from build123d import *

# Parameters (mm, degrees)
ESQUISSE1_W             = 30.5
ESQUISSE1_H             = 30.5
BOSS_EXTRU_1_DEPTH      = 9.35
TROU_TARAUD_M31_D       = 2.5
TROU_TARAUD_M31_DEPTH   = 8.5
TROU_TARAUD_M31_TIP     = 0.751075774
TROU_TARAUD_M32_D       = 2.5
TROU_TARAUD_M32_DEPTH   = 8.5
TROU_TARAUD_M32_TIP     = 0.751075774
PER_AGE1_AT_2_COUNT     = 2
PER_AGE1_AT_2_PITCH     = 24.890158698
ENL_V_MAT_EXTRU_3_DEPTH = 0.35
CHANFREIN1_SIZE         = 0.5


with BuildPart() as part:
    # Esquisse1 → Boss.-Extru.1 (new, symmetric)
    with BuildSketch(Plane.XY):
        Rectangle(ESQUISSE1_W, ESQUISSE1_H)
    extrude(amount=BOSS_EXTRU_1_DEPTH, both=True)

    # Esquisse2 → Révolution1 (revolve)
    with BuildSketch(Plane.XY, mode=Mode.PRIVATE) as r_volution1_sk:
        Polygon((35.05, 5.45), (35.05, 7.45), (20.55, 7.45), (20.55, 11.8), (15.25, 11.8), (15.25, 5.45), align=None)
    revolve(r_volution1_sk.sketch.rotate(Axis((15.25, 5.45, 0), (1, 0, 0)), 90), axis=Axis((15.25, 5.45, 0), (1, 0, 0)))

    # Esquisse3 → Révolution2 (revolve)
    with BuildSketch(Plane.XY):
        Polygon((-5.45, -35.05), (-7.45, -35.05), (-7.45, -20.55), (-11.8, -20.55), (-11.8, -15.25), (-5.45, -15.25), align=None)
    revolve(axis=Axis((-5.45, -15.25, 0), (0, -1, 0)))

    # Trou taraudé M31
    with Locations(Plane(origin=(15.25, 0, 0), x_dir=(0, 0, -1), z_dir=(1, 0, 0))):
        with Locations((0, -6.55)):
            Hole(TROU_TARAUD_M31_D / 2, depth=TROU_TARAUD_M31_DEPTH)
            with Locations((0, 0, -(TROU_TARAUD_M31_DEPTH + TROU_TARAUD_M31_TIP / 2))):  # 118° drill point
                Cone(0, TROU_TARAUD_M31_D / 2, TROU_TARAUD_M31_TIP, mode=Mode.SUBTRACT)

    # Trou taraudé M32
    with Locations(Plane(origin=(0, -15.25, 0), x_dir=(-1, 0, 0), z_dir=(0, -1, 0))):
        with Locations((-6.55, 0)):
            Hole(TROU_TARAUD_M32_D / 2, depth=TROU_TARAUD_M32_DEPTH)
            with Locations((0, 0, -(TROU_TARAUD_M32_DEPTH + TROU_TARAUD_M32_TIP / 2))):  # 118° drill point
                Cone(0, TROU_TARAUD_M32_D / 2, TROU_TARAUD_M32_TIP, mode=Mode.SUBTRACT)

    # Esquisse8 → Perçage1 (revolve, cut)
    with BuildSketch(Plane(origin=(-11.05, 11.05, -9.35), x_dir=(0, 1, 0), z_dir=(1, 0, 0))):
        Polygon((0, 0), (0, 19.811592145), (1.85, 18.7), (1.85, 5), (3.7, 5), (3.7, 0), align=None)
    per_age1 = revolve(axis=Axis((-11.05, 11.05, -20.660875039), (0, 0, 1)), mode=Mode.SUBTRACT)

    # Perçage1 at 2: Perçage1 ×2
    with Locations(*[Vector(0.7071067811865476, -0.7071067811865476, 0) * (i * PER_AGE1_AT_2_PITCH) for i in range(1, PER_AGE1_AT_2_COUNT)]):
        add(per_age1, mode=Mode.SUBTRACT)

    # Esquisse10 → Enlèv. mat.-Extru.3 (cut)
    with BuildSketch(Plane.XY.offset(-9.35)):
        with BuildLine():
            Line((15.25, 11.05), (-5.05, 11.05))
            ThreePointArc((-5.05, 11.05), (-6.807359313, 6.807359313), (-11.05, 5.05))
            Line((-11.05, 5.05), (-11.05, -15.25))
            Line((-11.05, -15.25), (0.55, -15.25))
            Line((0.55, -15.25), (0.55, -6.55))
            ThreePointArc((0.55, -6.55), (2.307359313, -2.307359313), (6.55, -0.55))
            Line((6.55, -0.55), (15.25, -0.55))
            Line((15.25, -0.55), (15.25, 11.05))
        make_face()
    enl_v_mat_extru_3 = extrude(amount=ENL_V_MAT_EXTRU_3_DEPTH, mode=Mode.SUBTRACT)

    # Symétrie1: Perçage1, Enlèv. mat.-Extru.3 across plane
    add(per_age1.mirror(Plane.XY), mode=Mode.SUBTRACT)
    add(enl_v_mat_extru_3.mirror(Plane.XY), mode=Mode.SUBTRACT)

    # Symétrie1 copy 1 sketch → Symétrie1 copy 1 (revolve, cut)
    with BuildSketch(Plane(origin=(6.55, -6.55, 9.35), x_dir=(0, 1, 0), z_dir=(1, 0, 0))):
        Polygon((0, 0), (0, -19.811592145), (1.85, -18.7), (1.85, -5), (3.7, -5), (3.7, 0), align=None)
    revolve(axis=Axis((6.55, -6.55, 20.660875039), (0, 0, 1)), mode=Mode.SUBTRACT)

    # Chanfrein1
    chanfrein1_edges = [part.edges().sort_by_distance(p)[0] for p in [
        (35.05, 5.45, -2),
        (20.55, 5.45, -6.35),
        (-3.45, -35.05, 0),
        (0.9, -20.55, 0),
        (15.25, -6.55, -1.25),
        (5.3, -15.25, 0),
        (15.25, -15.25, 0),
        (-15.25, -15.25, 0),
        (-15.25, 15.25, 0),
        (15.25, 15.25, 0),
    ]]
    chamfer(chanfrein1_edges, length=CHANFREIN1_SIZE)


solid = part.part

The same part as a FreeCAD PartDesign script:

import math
import FreeCAD as App
import Part
import Sketcher
from FreeCAD import Vector
Q = App.Units.Quantity


def edges_at(feature, points):
    """Names of the edges that pass closest to the given points."""
    edges = feature.Shape.Edges
    near = lambda p: min(range(len(edges)), key=lambda i: edges[i].distToShape(Part.Vertex(*p))[0])
    return sorted({f"Edge{near(p) + 1}" for p in points})

doc = App.newDocument("Part")
body = doc.addObject("PartDesign::Body", "Body")

sketch1 = body.newObject("Sketcher::SketchObject", "Sketch")
sketch1.AttachmentSupport = (doc.getObject("XY_Plane"), [""])
sketch1.MapMode = "FlatFace"
sketch1.addGeometry(Part.LineSegment(Vector(-15, 15, 0), Vector(-15, -15, 0)), False)
sketch1.addGeometry(Part.LineSegment(Vector(-15, -15, 0), Vector(15, -15, 0)), False)
sketch1.addGeometry(Part.LineSegment(Vector(15, -15, 0), Vector(15, 15, 0)), False)
sketch1.addGeometry(Part.LineSegment(Vector(15, 15, 0), Vector(-15, 15, 0)), False)
sketch1.addConstraint(Sketcher.Constraint("Coincident", 0, 2, 1, 1))
sketch1.addConstraint(Sketcher.Constraint("Coincident", 1, 2, 2, 1))
sketch1.addConstraint(Sketcher.Constraint("Coincident", 2, 2, 3, 1))
sketch1.addConstraint(Sketcher.Constraint("Coincident", 3, 2, 0, 1))
sketch1.addConstraint(Sketcher.Constraint("Vertical", 0))
sketch1.addConstraint(Sketcher.Constraint("Horizontal", 1))
sketch1.addConstraint(Sketcher.Constraint("Vertical", 2))
sketch1.addConstraint(Sketcher.Constraint("Horizontal", 3))
sketch1.addConstraint(Sketcher.Constraint("Symmetric", 0, 2, 2, 2, -1, 1))
sketch1.addConstraint(Sketcher.Constraint("Equal", 3, 0))
sketch1.addConstraint(Sketcher.Constraint("DistanceX", 1, 1, 1, 2, Q("30.5 mm")))
pad1 = body.newObject("PartDesign::Pad", "Pad")
pad1.Profile = sketch1
pad1.Length = 18.7
pad1.Midplane = True

sketch2 = body.newObject("Sketcher::SketchObject", "Sketch001")
sketch2.AttachmentSupport = (doc.getObject("XY_Plane"), [""])
sketch2.MapMode = "FlatFace"
sketch2.addGeometry(Part.LineSegment(Vector(35, 5.5, 0), Vector(35, 7.5, 0)), False)
sketch2.addGeometry(Part.LineSegment(Vector(35, 7.5, 0), Vector(20.6, 7.5, 0)), False)
sketch2.addGeometry(Part.LineSegment(Vector(20.6, 7.5, 0), Vector(20.6, 11.8, 0)), False)
sketch2.addGeometry(Part.LineSegment(Vector(20.6, 11.8, 0), Vector(15.2, 11.8, 0)), False)
sketch2.addGeometry(Part.LineSegment(Vector(15.2, 11.8, 0), Vector(15.2, 5.5, 0)), False)
sketch2.addGeometry(Part.LineSegment(Vector(15.2, 5.5, 0), Vector(35, 5.5, 0)), False)
sketch2.addGeometry(Part.LineSegment(Vector(15.2, 5.5, 0), Vector(35, 5.5, 0)), True)
sketch2.addConstraint(Sketcher.Constraint("Coincident", 0, 2, 1, 1))
sketch2.addConstraint(Sketcher.Constraint("Coincident", 1, 2, 2, 1))
sketch2.addConstraint(Sketcher.Constraint("Coincident", 2, 2, 3, 1))
sketch2.addConstraint(Sketcher.Constraint("Coincident", 3, 2, 4, 1))
sketch2.addConstraint(Sketcher.Constraint("Coincident", 4, 2, 5, 1))
sketch2.addConstraint(Sketcher.Constraint("Coincident", 5, 2, 0, 1))
sketch2.addConstraint(Sketcher.Constraint("Vertical", 0))
sketch2.addConstraint(Sketcher.Constraint("Horizontal", 1))
sketch2.addConstraint(Sketcher.Constraint("Vertical", 2))
sketch2.addConstraint(Sketcher.Constraint("Horizontal", 3))
sketch2.addConstraint(Sketcher.Constraint("Vertical", 4))
sketch2.addConstraint(Sketcher.Constraint("Horizontal", 5))
sketch2.addConstraint(Sketcher.Constraint("Horizontal", 6))
sketch2.addConstraint(Sketcher.Constraint("Coincident", 6, 1, 4, 2))
sketch2.addConstraint(Sketcher.Constraint("Vertical", 0, 2, 6, 2))
sketch2.addConstraint(Sketcher.Constraint("DistanceY", 0, 1, 0, 2, Q("2 mm")))
sketch2.addConstraint(Sketcher.Constraint("DistanceX", 1, 2, 1, 1, Q("14.5 mm")))
sketch2.addConstraint(Sketcher.Constraint("DistanceX", 3, 2, 3, 1, Q("5.3 mm")))
sketch2.addConstraint(Sketcher.Constraint("DistanceY", 2, 1, 2, 2, Q("4.35 mm")))
sketch2.addConstraint(Sketcher.Constraint("DistanceY", -1, 1, 2, 2, Q("11.8 mm")))
sketch2.addConstraint(Sketcher.Constraint("DistanceX", -1, 1, 0, 2, Q("35.05 mm")))
revolution = body.newObject("PartDesign::Revolution", "Revolution")
revolution.Profile = sketch2
revolution.ReferenceAxis = (sketch2, ["Axis0"])
revolution.Angle = 360

sketch3 = body.newObject("Sketcher::SketchObject", "Sketch002")
sketch3.AttachmentSupport = (doc.getObject("XY_Plane"), [""])
sketch3.MapMode = "FlatFace"
sketch3.addGeometry(Part.LineSegment(Vector(-7.5, -35, 0), Vector(-5.5, -35, 0)), False)
sketch3.addGeometry(Part.LineSegment(Vector(-5.5, -35, 0), Vector(-5.5, -15.2, 0)), False)
sketch3.addGeometry(Part.LineSegment(Vector(-5.5, -15.2, 0), Vector(-11.8, -15.2, 0)), False)
sketch3.addGeometry(Part.LineSegment(Vector(-11.8, -15.2, 0), Vector(-11.8, -20.6, 0)), False)
sketch3.addGeometry(Part.LineSegment(Vector(-11.8, -20.6, 0), Vector(-7.5, -20.6, 0)), False)
sketch3.addGeometry(Part.LineSegment(Vector(-7.5, -20.6, 0), Vector(-7.5, -35, 0)), False)
sketch3.addGeometry(Part.LineSegment(Vector(-5.5, -15.2, 0), Vector(-5.5, -35, 0)), True)
sketch3.addConstraint(Sketcher.Constraint("Coincident", 0, 2, 1, 1))
sketch3.addConstraint(Sketcher.Constraint("Coincident", 1, 2, 2, 1))
sketch3.addConstraint(Sketcher.Constraint("Coincident", 2, 2, 3, 1))
sketch3.addConstraint(Sketcher.Constraint("Coincident", 3, 2, 4, 1))
sketch3.addConstraint(Sketcher.Constraint("Coincident", 4, 2, 5, 1))
sketch3.addConstraint(Sketcher.Constraint("Coincident", 5, 2, 0, 1))
sketch3.addConstraint(Sketcher.Constraint("Horizontal", 0))
sketch3.addConstraint(Sketcher.Constraint("Vertical", 1))
sketch3.addConstraint(Sketcher.Constraint("Horizontal", 2))
sketch3.addConstraint(Sketcher.Constraint("Vertical", 3))
sketch3.addConstraint(Sketcher.Constraint("Horizontal", 4))
sketch3.addConstraint(Sketcher.Constraint("Vertical", 5))
sketch3.addConstraint(Sketcher.Constraint("Vertical", 6))
sketch3.addConstraint(Sketcher.Constraint("Coincident", 6, 1, 1, 2))
sketch3.addConstraint(Sketcher.Constraint("Horizontal", 5, 2, 6, 2))
sketch3.addConstraint(Sketcher.Constraint("DistanceX", 0, 1, 0, 2, Q("2 mm")))
sketch3.addConstraint(Sketcher.Constraint("DistanceY", 1, 1, 1, 2, Q("19.8 mm")))
sketch3.addConstraint(Sketcher.Constraint("DistanceY", 3, 2, 3, 1, Q("5.3 mm")))
sketch3.addConstraint(Sketcher.Constraint("DistanceX", 2, 2, 2, 1, Q("6.35 mm")))
sketch3.addConstraint(Sketcher.Constraint("DistanceX", 2, 2, -1, 1, Q("11.8 mm")))
sketch3.addConstraint(Sketcher.Constraint("DistanceY", 0, 2, -1, 1, Q("35.05 mm")))
revolution2 = body.newObject("PartDesign::Revolution", "Revolution001")
revolution2.Profile = sketch3
revolution2.ReferenceAxis = (sketch3, ["Axis0"])
revolution2.Angle = 360

sketch4 = body.newObject("Sketcher::SketchObject", "Sketch003")
sketch4.AttachmentSupport = (doc.getObject("YZ_Plane"), [""])
sketch4.MapMode = "FlatFace"
sketch4.AttachmentOffset = App.Placement(Vector(0, 0, 15.25), App.Rotation())
sketch4.addGeometry(Part.Circle(Vector(-6.5, 0, 0), Vector(0, 0, 1), 1.2), False)
sketch4.addConstraint(Sketcher.Constraint("PointOnObject", 0, 3, -1))
sketch4.addConstraint(Sketcher.Constraint("Diameter", 0, Q("2.5 mm")))
sketch4.addConstraint(Sketcher.Constraint("DistanceX", 0, 3, -1, 1, Q("6.55 mm")))
doc.recompute()
hole = body.newObject("PartDesign::Hole", "Hole")
hole.Profile = sketch4
hole.ThreadType = "None"
hole.Diameter = 2.5
hole.DepthType = "Dimension"
hole.Depth = 8.5
hole.DrillPoint = "Angled"
hole.DrillPointAngle = 118

sketch5 = body.newObject("Sketcher::SketchObject", "Sketch004")
sketch5.AttachmentSupport = (doc.getObject("XZ_Plane"), [""])
sketch5.MapMode = "FlatFace"
sketch5.AttachmentOffset = App.Placement(Vector(0, 0, 15.25), App.Rotation())
sketch5.addGeometry(Part.Circle(Vector(6.5, 0, 0), Vector(0, 0, 1), 1.2), False)
sketch5.addConstraint(Sketcher.Constraint("PointOnObject", 0, 3, -1))
sketch5.addConstraint(Sketcher.Constraint("Diameter", 0, Q("2.5 mm")))
sketch5.addConstraint(Sketcher.Constraint("DistanceX", -1, 1, 0, 3, Q("6.55 mm")))
doc.recompute()
hole2 = body.newObject("PartDesign::Hole", "Hole001")
hole2.Profile = sketch5
hole2.ThreadType = "None"
hole2.Diameter = 2.5
hole2.DepthType = "Dimension"
hole2.Depth = 8.5
hole2.DrillPoint = "Angled"
hole2.DrillPointAngle = 118

sketch6 = body.newObject("Sketcher::SketchObject", "Sketch005")
sketch6.AttachmentSupport = (doc.getObject("YZ_Plane"), [""])
sketch6.MapMode = "FlatFace"
sketch6.AttachmentOffset = App.Placement(Vector(0, 0, -11.05), App.Rotation())
sketch6.addGeometry(Part.LineSegment(Vector(11.1, 10.5, 0), Vector(11.1, -9.3, 0)), False)
sketch6.addGeometry(Part.LineSegment(Vector(11.1, -9.3, 0), Vector(14.8, -9.3, 0)), False)
sketch6.addGeometry(Part.LineSegment(Vector(14.8, -9.3, 0), Vector(14.8, -4.3, 0)), False)
sketch6.addGeometry(Part.LineSegment(Vector(14.8, -4.3, 0), Vector(12.9, -4.3, 0)), False)
sketch6.addGeometry(Part.LineSegment(Vector(12.9, -4.3, 0), Vector(12.9, 9.3, 0)), False)
sketch6.addGeometry(Part.LineSegment(Vector(12.9, 9.3, 0), Vector(11.1, 10.5, 0)), False)
sketch6.addGeometry(Part.LineSegment(Vector(11.1, -9.3, 0), Vector(11.1, 10.5, 0)), True)
sketch6.addConstraint(Sketcher.Constraint("Coincident", 0, 2, 1, 1))
sketch6.addConstraint(Sketcher.Constraint("Coincident", 1, 2, 2, 1))
sketch6.addConstraint(Sketcher.Constraint("Coincident", 2, 2, 3, 1))
sketch6.addConstraint(Sketcher.Constraint("Coincident", 3, 2, 4, 1))
sketch6.addConstraint(Sketcher.Constraint("Coincident", 4, 2, 5, 1))
sketch6.addConstraint(Sketcher.Constraint("Coincident", 5, 2, 0, 1))
sketch6.addConstraint(Sketcher.Constraint("Vertical", 0))
sketch6.addConstraint(Sketcher.Constraint("Horizontal", 1))
sketch6.addConstraint(Sketcher.Constraint("Vertical", 2))
sketch6.addConstraint(Sketcher.Constraint("Horizontal", 3))
sketch6.addConstraint(Sketcher.Constraint("Vertical", 4))
sketch6.addConstraint(Sketcher.Constraint("Vertical", 6))
sketch6.addConstraint(Sketcher.Constraint("Coincident", 6, 1, 0, 2))
sketch6.addConstraint(Sketcher.Constraint("Equal", 0, 6))
sketch6.addConstraint(Sketcher.Constraint("DistanceY", 2, 1, 2, 2, Q("5 mm")))
sketch6.addConstraint(Sketcher.Constraint("Angle", 5, Q("149 deg")))
sketch6.addConstraint(Sketcher.Constraint("DistanceX", 1, 1, 1, 2, Q("3.7 mm")))
sketch6.addConstraint(Sketcher.Constraint("DistanceY", 4, 1, 4, 2, Q("13.7 mm")))
sketch6.addConstraint(Sketcher.Constraint("DistanceX", 3, 2, 3, 1, Q("1.85 mm")))
sketch6.addConstraint(Sketcher.Constraint("DistanceX", -1, 1, 3, 2, Q("12.9 mm")))
sketch6.addConstraint(Sketcher.Constraint("DistanceY", 0, 2, -1, 1, Q("9.35 mm")))
groove = body.newObject("PartDesign::Groove", "Groove")
groove.Profile = sketch6
groove.ReferenceAxis = (sketch6, ["Axis0"])
groove.Angle = 360
doc.recompute()

datumline = body.newObject("PartDesign::Line", "DatumLine")
datumline.Placement = App.Placement(Vector(0, 0, 0), App.Rotation(Vector(0, 0, 1), Vector(0.707106781, -0.707106781, 0)))
linearpattern = body.newObject("PartDesign::LinearPattern", "LinearPattern")
linearpattern.Originals = [groove]
linearpattern.Direction = (datumline, [""])
linearpattern.Mode = "offset"
linearpattern.Offset = 24.890159
linearpattern.Occurrences = 2
body.Tip = linearpattern

sketch7 = body.newObject("Sketcher::SketchObject", "Sketch006")
sketch7.AttachmentSupport = (doc.getObject("XY_Plane"), [""])
sketch7.MapMode = "FlatFace"
sketch7.AttachmentOffset = App.Placement(Vector(0, 0, -9.35), App.Rotation())
sketch7.addGeometry(Part.LineSegment(Vector(15, 11, 0), Vector(-5, 11, 0)), False)
sketch7.addGeometry(Part.ArcOfCircle(Part.Circle(Vector(-11, 11, 0), Vector(0, 0, 1), 6), math.radians(-90), math.radians(0)), False)
sketch7.addGeometry(Part.LineSegment(Vector(-11, 5, 0), Vector(-11, -15, 0)), False)
sketch7.addGeometry(Part.LineSegment(Vector(-11, -15, 0), Vector(1, -15, 0)), False)
sketch7.addGeometry(Part.LineSegment(Vector(1, -15, 0), Vector(1, -7, 0)), False)
sketch7.addGeometry(Part.ArcOfCircle(Part.Circle(Vector(7, -7, 0), Vector(0, 0, 1), 6), math.radians(90), math.radians(180)), False)
sketch7.addGeometry(Part.LineSegment(Vector(7, -1, 0), Vector(15, -1, 0)), False)
sketch7.addGeometry(Part.LineSegment(Vector(15, -1, 0), Vector(15, 11, 0)), False)
sketch7.addConstraint(Sketcher.Constraint("Coincident", 0, 2, 1, 2))
sketch7.addConstraint(Sketcher.Constraint("Coincident", 1, 1, 2, 1))
sketch7.addConstraint(Sketcher.Constraint("Coincident", 2, 2, 3, 1))
sketch7.addConstraint(Sketcher.Constraint("Coincident", 3, 2, 4, 1))
sketch7.addConstraint(Sketcher.Constraint("Tangent", 4, 2, 5, 2))
sketch7.addConstraint(Sketcher.Constraint("Tangent", 5, 1, 6, 1))
sketch7.addConstraint(Sketcher.Constraint("Coincident", 6, 2, 7, 1))
sketch7.addConstraint(Sketcher.Constraint("Coincident", 7, 2, 0, 1))
sketch7.addConstraint(Sketcher.Constraint("Horizontal", 0))
sketch7.addConstraint(Sketcher.Constraint("Vertical", 2))
sketch7.addConstraint(Sketcher.Constraint("Horizontal", 3))
sketch7.addConstraint(Sketcher.Constraint("Vertical", 4))
sketch7.addConstraint(Sketcher.Constraint("Horizontal", 6))
sketch7.addConstraint(Sketcher.Constraint("Vertical", 7))
sketch7.addConstraint(Sketcher.Constraint("Equal", 1, 5))
sketch7.addConstraint(Sketcher.Constraint("Horizontal", 1, 3, 0, 2))
sketch7.addConstraint(Sketcher.Constraint("Equal", 0, 2))
sketch7.addConstraint(Sketcher.Constraint("Equal", 6, 4))
sketch7.addConstraint(Sketcher.Constraint("Equal", 3, 7))
sketch7.addConstraint(Sketcher.Constraint("Radius", 1, Q("6 mm")))
sketch7.addConstraint(Sketcher.Constraint("DistanceX", 0, 2, 0, 1, Q("20.3 mm")))
sketch7.addConstraint(Sketcher.Constraint("DistanceX", 3, 1, 3, 2, Q("11.6 mm")))
sketch7.addConstraint(Sketcher.Constraint("DistanceX", 1, 3, -1, 1, Q("11.05 mm")))
sketch7.addConstraint(Sketcher.Constraint("DistanceY", -1, 1, 1, 3, Q("11.05 mm")))
pocket1 = body.newObject("PartDesign::Pocket", "Pocket")
pocket1.Profile = sketch7
pocket1.Length = 0.35
pocket1.Reversed = True
doc.recompute()

mirrored = body.newObject("PartDesign::Mirrored", "Mirrored")
mirrored.Originals = [groove, pocket1]
mirrored.MirrorPlane = (doc.getObject("XY_Plane"), [""])
body.Tip = mirrored

sketch8 = body.newObject("Sketcher::SketchObject", "Sketch007")
sketch8.AttachmentSupport = (doc.getObject("YZ_Plane"), [""])
sketch8.MapMode = "FlatFace"
sketch8.AttachmentOffset = App.Placement(Vector(0, 0, 6.55), App.Rotation())
sketch8.addGeometry(Part.LineSegment(Vector(-6.5, 9.3, 0), Vector(-6.5, -10.5, 0)), False)
sketch8.addGeometry(Part.LineSegment(Vector(-6.5, -10.5, 0), Vector(-4.7, -9.3, 0)), False)
sketch8.addGeometry(Part.LineSegment(Vector(-4.7, -9.3, 0), Vector(-4.7, 4.3, 0)), False)
sketch8.addGeometry(Part.LineSegment(Vector(-4.7, 4.3, 0), Vector(-2.9, 4.3, 0)), False)
sketch8.addGeometry(Part.LineSegment(Vector(-2.9, 4.3, 0), Vector(-2.9, 9.3, 0)), False)
sketch8.addGeometry(Part.LineSegment(Vector(-2.9, 9.3, 0), Vector(-6.5, 9.3, 0)), False)
sketch8.addGeometry(Part.LineSegment(Vector(-6.5, -10.5, 0), Vector(-6.5, 9.3, 0)), True)
sketch8.addConstraint(Sketcher.Constraint("Coincident", 0, 2, 1, 1))
sketch8.addConstraint(Sketcher.Constraint("Coincident", 1, 2, 2, 1))
sketch8.addConstraint(Sketcher.Constraint("Coincident", 2, 2, 3, 1))
sketch8.addConstraint(Sketcher.Constraint("Coincident", 3, 2, 4, 1))
sketch8.addConstraint(Sketcher.Constraint("Coincident", 4, 2, 5, 1))
sketch8.addConstraint(Sketcher.Constraint("Coincident", 5, 2, 0, 1))
sketch8.addConstraint(Sketcher.Constraint("Vertical", 0))
sketch8.addConstraint(Sketcher.Constraint("Vertical", 2))
sketch8.addConstraint(Sketcher.Constraint("Horizontal", 3))
sketch8.addConstraint(Sketcher.Constraint("Vertical", 4))
sketch8.addConstraint(Sketcher.Constraint("Horizontal", 5))
sketch8.addConstraint(Sketcher.Constraint("Vertical", 6))
sketch8.addConstraint(Sketcher.Constraint("Coincident", 6, 1, 0, 2))
sketch8.addConstraint(Sketcher.Constraint("Horizontal", 4, 2, 6, 2))
sketch8.addConstraint(Sketcher.Constraint("DistanceY", 4, 1, 4, 2, Q("5 mm")))
sketch8.addConstraint(Sketcher.Constraint("Angle", 1, Q("31 deg")))
sketch8.addConstraint(Sketcher.Constraint("DistanceX", 5, 2, 5, 1, Q("3.7 mm")))
sketch8.addConstraint(Sketcher.Constraint("DistanceY", 2, 1, 2, 2, Q("13.7 mm")))
sketch8.addConstraint(Sketcher.Constraint("DistanceX", 3, 1, 3, 2, Q("1.85 mm")))
sketch8.addConstraint(Sketcher.Constraint("DistanceX", 1, 2, -1, 1, Q("4.7 mm")))
sketch8.addConstraint(Sketcher.Constraint("DistanceY", 1, 2, -1, 1, Q("9.35 mm")))
groove2 = body.newObject("PartDesign::Groove", "Groove001")
groove2.Profile = sketch8
groove2.ReferenceAxis = (sketch8, ["Axis0"])
groove2.Angle = 360
doc.recompute()

chamfer = body.newObject("PartDesign::Chamfer", "Chamfer")
chamfer.Base = (groove2, edges_at(groove2, [
    (35.05, 5.45, -2),
    (20.55, 5.45, -6.35),
    (-3.45, -35.05, 0),
    (0.9, -20.55, 0),
    (15.25, -6.55, -1.25),
    (5.3, -15.25, 0),
    (15.25, -15.25, 0),
    (-15.25, -15.25, 0),
    (-15.25, 15.25, 0),
    (15.25, 15.25, 0),
]))
chamfer.Size = 0.5

doc.recompute()
